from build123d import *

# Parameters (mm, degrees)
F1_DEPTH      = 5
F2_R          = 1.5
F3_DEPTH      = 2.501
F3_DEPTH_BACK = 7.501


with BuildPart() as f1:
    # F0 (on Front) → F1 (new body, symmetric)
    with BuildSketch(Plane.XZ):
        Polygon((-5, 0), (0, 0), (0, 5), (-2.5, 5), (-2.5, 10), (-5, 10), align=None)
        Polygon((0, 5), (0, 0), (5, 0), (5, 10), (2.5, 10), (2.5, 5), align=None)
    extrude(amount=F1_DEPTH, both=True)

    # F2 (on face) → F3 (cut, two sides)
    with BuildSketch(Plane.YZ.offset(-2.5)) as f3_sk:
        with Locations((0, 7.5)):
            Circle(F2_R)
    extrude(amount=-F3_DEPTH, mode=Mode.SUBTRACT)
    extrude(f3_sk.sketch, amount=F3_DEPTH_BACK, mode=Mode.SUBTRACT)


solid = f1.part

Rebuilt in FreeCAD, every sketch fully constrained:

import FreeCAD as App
import Part
import Sketcher
from FreeCAD import Vector
Q = App.Units.Quantity


def add_polygon(sketch, points):
    """Adds a closed chain of lines whose ends are joined by coincident constraints."""
    first, n = sketch.GeometryCount, len(points)
    for a, b in zip(points, points[1:] + points[:1]):
        sketch.addGeometry(Part.LineSegment(App.Vector(*a, 0), App.Vector(*b, 0)), False)
    for i in range(n):
        sketch.addConstraint(Sketcher.Constraint("Coincident", first + i, 2, first + (i + 1) % n, 1))

doc = App.newDocument("Part")
body = doc.addObject("PartDesign::Body", "Body")

# Sketch on XZ plane
sketch1 = doc.addObject("Sketcher::SketchObject", "Sketch")
body.addObject(sketch1)
sketch1.AttachmentSupport = (doc.XZ_Plane, [""])
sketch1.MapMode = "FlatFace"
add_polygon(sketch1, [(-5, 0), (5, 0), (5, 10), (2.5, 10), (2.5, 5), (-2.5, 5), (-2.5, 10), (-5, 10)])  # lines 0-7
sketch1.addConstraint(Sketcher.Constraint("Horizontal", 0))
sketch1.addConstraint(Sketcher.Constraint("Vertical", 1))
sketch1.addConstraint(Sketcher.Constraint("Horizontal", 2))
sketch1.addConstraint(Sketcher.Constraint("Vertical", 3))
sketch1.addConstraint(Sketcher.Constraint("Horizontal", 4))
sketch1.addConstraint(Sketcher.Constraint("Vertical", 5))
sketch1.addConstraint(Sketcher.Constraint("Horizontal", 6))
sketch1.addConstraint(Sketcher.Constraint("Vertical", 7))
sketch1.addConstraint(Sketcher.Constraint("Symmetric", 0, 2, 7, 2, -1, 1))
sketch1.addConstraint(Sketcher.Constraint("Symmetric", 2, 2, 5, 2, -2))
sketch1.addConstraint(Sketcher.Constraint("Equal", 0, 1))
sketch1.addConstraint(Sketcher.Constraint("Equal", 4, 3))
sketch1.addConstraint(Sketcher.Constraint("DistanceX", 0, 1, 0, 2, Q("10 mm")))
sketch1.addConstraint(Sketcher.Constraint("DistanceX", 4, 2, 4, 1, Q("5 mm")))
pad1 = doc.addObject("PartDesign::Pad", "Pad")
body.addObject(pad1)
pad1.Profile = sketch1
pad1.Length = 10
pad1.Midplane = True

# Sketch on YZ plane
sketch2 = doc.addObject("Sketcher::SketchObject", "Sketch001")
body.addObject(sketch2)
sketch2.AttachmentSupport = (doc.YZ_Plane, [""])
sketch2.MapMode = "FlatFace"
sketch2.AttachmentOffset = App.Placement(Vector(0, 0, -2.5), App.Rotation())
sketch2.addGeometry(Part.Circle(Vector(0, 7.5, 0), Vector(0, 0, 1), 1.5), False)
sketch2.addConstraint(Sketcher.Constraint("PointOnObject", 0, 3, -2))
sketch2.addConstraint(Sketcher.Constraint("Diameter", 0, Q("3 mm")))
sketch2.addConstraint(Sketcher.Constraint("DistanceY", -1, 1, 0, 3, Q("7.5 mm")))
pocket1 = doc.addObject("PartDesign::Pocket", "Pocket")
body.addObject(pocket1)
pocket1.Profile = sketch2
pocket1.Type = "ThroughAll"
pocket1.Midplane = True

doc.recompute()
